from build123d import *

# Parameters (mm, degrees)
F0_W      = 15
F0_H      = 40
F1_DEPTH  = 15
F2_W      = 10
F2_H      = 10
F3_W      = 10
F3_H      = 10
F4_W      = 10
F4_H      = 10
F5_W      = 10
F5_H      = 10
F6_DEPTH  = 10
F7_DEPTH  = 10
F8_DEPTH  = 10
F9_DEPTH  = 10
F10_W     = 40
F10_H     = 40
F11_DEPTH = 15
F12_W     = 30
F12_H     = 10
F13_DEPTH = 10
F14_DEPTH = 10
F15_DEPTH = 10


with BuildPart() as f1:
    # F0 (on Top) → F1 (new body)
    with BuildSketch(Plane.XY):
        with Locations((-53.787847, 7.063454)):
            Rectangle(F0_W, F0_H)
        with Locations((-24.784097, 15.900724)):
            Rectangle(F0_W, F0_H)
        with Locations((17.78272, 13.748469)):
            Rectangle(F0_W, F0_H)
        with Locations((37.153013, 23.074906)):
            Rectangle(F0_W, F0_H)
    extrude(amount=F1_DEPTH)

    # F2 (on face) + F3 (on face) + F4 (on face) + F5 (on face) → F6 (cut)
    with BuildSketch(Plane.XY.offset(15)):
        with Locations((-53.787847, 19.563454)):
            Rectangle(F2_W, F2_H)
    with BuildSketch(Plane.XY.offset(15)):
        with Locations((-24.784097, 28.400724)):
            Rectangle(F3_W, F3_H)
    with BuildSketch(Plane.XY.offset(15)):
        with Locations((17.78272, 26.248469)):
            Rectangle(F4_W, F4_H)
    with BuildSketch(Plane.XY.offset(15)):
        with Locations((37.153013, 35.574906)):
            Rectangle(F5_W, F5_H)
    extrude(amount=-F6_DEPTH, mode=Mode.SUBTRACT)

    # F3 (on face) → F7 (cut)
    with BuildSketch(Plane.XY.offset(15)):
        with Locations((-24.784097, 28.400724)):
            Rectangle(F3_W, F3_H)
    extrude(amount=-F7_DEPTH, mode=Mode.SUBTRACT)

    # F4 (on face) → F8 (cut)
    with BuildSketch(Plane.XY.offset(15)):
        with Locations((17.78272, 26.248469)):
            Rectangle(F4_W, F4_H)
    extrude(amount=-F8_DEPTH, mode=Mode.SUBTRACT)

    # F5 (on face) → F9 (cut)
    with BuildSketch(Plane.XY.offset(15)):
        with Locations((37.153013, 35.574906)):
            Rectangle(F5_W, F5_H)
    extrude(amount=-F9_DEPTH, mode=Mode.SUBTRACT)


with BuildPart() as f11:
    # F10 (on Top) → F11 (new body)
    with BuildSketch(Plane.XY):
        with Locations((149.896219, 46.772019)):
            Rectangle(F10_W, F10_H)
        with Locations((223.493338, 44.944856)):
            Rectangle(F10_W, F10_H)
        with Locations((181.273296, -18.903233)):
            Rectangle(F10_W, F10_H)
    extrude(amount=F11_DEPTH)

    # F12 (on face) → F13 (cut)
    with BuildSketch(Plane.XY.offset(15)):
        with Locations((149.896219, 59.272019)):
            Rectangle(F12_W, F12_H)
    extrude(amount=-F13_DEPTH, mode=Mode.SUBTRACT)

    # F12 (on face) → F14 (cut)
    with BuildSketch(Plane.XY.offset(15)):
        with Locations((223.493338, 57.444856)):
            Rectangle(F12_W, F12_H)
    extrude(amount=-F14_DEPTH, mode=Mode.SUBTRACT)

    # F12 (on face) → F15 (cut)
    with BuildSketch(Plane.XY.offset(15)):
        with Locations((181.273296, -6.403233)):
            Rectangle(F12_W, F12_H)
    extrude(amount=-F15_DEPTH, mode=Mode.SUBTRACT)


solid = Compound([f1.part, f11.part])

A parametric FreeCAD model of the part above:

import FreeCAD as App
import Part
import Sketcher
Q = App.Units.Quantity


def add_polygon(sketch, points):
    """Adds a closed chain of lines whose ends are joined by coincident constraints."""
    first, n = sketch.GeometryCount, len(points)
    for a, b in zip(points, points[1:] + points[:1]):
        sketch.addGeometry(Part.LineSegment(App.Vector(*a, 0), App.Vector(*b, 0)), False)
    for i in range(n):
        sketch.addConstraint(Sketcher.Constraint("Coincident", first + i, 2, first + (i + 1) % n, 1))

doc = App.newDocument("Part")
body = doc.addObject("PartDesign::Body", "Body")
body.AllowCompound = True

sketch1 = body.newObject("Sketcher::SketchObject", "Sketch")
sketch1.AttachmentSupport = (doc.getObject("XY_Plane"), [""])
sketch1.MapMode = "FlatFace"
add_polygon(sketch1, [(-61.287847, 27.063454), (-61.287847, -12.936546), (-46.287847, -12.936546), (-46.287847, 27.063454)])
add_polygon(sketch1, [(-32.284097, 35.900724), (-32.284097, -4.099276), (-17.284097, -4.099276), (-17.284097, 35.900724)])
add_polygon(sketch1, [(10.28272, 33.748469), (10.28272, -6.251531), (25.28272, -6.251531), (25.28272, 33.748469)])
add_polygon(sketch1, [(29.653013, 43.074906), (29.653013, 3.074906), (44.653013, 3.074906), (44.653013, 43.074906)])
sketch1.addConstraint([
    Sketcher.Constraint("Vertical", 0),
    Sketcher.Constraint("Horizontal", 1),
    Sketcher.Constraint("Vertical", 2),
    Sketcher.Constraint("Horizontal", 3),
    Sketcher.Constraint("Vertical", 4),
    Sketcher.Constraint("Horizontal", 5),
    Sketcher.Constraint("Vertical", 6),
    Sketcher.Constraint("Horizontal", 7),
    Sketcher.Constraint("Vertical", 8),
    Sketcher.Constraint("Horizontal", 9),
    Sketcher.Constraint("Vertical", 10),
    Sketcher.Constraint("Horizontal", 11),
    Sketcher.Constraint("Vertical", 12),
    Sketcher.Constraint("Horizontal", 13),
    Sketcher.Constraint("Vertical", 14),
    Sketcher.Constraint("Horizontal", 15),
    Sketcher.Constraint("Equal", 3, 5),
    Sketcher.Constraint("Equal", 7, 9),
    Sketcher.Constraint("Equal", 11, 13),
    Sketcher.Constraint("Equal", 2, 4),
    Sketcher.Constraint("Equal", 6, 8),
    Sketcher.Constraint("Equal", 10, 12),
    Sketcher.Constraint("DistanceX", 1, 1, 1, 2, Q("15 mm")),
    Sketcher.Constraint("DistanceY", 0, 2, 0, 1, Q("40 mm")),
    Sketcher.Constraint("DistanceX", -1, 1, 8, 2, Q("10.28272 mm")),
    Sketcher.Constraint("DistanceY", 8, 2, -1, 1, Q("6.251531 mm")),
    Sketcher.Constraint("DistanceX", 1, 2, 4, 2, Q("14.00375 mm")),
    Sketcher.Constraint("DistanceY", 1, 2, 4, 2, Q("8.83727 mm")),
    Sketcher.Constraint("DistanceX", 5, 2, 12, 2, Q("46.93711 mm")),
    Sketcher.Constraint("DistanceX", 0, 2, -1, 1, Q("61.287847 mm")),
    Sketcher.Constraint("DistanceY", 0, 2, -1, 1, Q("12.936546 mm")),
    Sketcher.Constraint("DistanceY", -1, 1, 12, 2, Q("3.074906 mm")),
])
pad1 = body.newObject("PartDesign::Pad", "Pad")
pad1.Profile = sketch1
pad1.Length = 15

sketch2 = body.newObject("Sketcher::SketchObject", "Sketch001")
sketch2.AttachmentSupport = (doc.getObject("XY_Plane"), [""])
sketch2.MapMode = "FlatFace"
sketch2.AttachmentOffset = App.Placement(App.Vector(0, 0, 15), App.Rotation())
add_polygon(sketch2, [(-58.787847, 24.563454), (-58.787847, 14.563454), (-48.787847, 14.563454), (-48.787847, 24.563454)])
add_polygon(sketch2, [(-29.784097, 33.400724), (-29.784097, 23.400724), (-19.784097, 23.400724), (-19.784097, 33.400724)])
add_polygon(sketch2, [(12.78272, 31.248469), (12.78272, 21.248469), (22.78272, 21.248469), (22.78272, 31.248469)])
add_polygon(sketch2, [(32.153013, 40.574906), (32.153013, 30.574906), (42.153013, 30.574906), (42.153013, 40.574906)])
sketch2.addConstraint([
    Sketcher.Constraint("Vertical", 0),
    Sketcher.Constraint("Horizontal", 1),
    Sketcher.Constraint("Vertical", 2),
    Sketcher.Constraint("Horizontal", 3),
    Sketcher.Constraint("Vertical", 4),
    Sketcher.Constraint("Horizontal", 5),
    Sketcher.Constraint("Vertical", 6),
    Sketcher.Constraint("Horizontal", 7),
    Sketcher.Constraint("Vertical", 8),
    Sketcher.Constraint("Horizontal", 9),
    Sketcher.Constraint("Vertical", 10),
    Sketcher.Constraint("Horizontal", 11),
    Sketcher.Constraint("Vertical", 12),
    Sketcher.Constraint("Horizontal", 13),
    Sketcher.Constraint("Vertical", 14),
    Sketcher.Constraint("Horizontal", 15),
    Sketcher.Constraint("Equal", 3, 5),
    Sketcher.Constraint("Equal", 7, 9),
    Sketcher.Constraint("Equal", 11, 13),
    Sketcher.Constraint("Equal", 15, 0),
    Sketcher.Constraint("Equal", 2, 4),
    Sketcher.Constraint("Equal", 6, 8),
    Sketcher.Constraint("Equal", 10, 12),
    Sketcher.Constraint("DistanceX", 1, 1, 1, 2, Q("10 mm")),
    Sketcher.Constraint("DistanceX", -1, 1, 8, 2, Q("12.78272 mm")),
    Sketcher.Constraint("DistanceY", -1, 1, 8, 2, Q("21.248469 mm")),
    Sketcher.Constraint("DistanceX", 2, 2, 4, 2, Q("19.00375 mm")),
    Sketcher.Constraint("DistanceY", 4, 2, 2, 2, Q("1.16273 mm")),
    Sketcher.Constraint("DistanceX", 6, 2, 12, 2, Q("51.93711 mm")),
    Sketcher.Constraint("DistanceX", 0, 2, -1, 1, Q("58.787847 mm")),
    Sketcher.Constraint("DistanceY", -1, 1, 0, 2, Q("14.563454 mm")),
    Sketcher.Constraint("DistanceY", -1, 1, 12, 2, Q("30.574906 mm")),
])
pocket1 = body.newObject("PartDesign::Pocket", "Pocket")
pocket1.Profile = sketch2
pocket1.Length = 10

sketch3 = body.newObject("Sketcher::SketchObject", "Sketch002")
sketch3.AttachmentSupport = (doc.getObject("XY_Plane"), [""])
sketch3.MapMode = "FlatFace"
sketch3.AttachmentOffset = App.Placement(App.Vector(0, 0, 15), App.Rotation())
add_polygon(sketch3, [(-29.784097, 33.400724), (-29.784097, 23.400724), (-19.784097, 23.400724), (-19.784097, 33.400724)])
sketch3.addConstraint([
    Sketcher.Constraint("Vertical", 0),
    Sketcher.Constraint("Horizontal", 1),
    Sketcher.Constraint("Vertical", 2),
    Sketcher.Constraint("Horizontal", 3),
    Sketcher.Constraint("Equal", 3, 0),
    Sketcher.Constraint("DistanceX", 1, 1, 1, 2, Q("10 mm")),
    Sketcher.Constraint("DistanceX", 0, 2, -1, 1, Q("29.784097 mm")),
    Sketcher.Constraint("DistanceY", -1, 1, 0, 2, Q("23.400724 mm")),
])
pocket2 = body.newObject("PartDesign::Pocket", "Pocket001")
pocket2.Profile = sketch3
pocket2.Length = 10

sketch4 = body.newObject("Sketcher::SketchObject", "Sketch003")
sketch4.AttachmentSupport = (doc.getObject("XY_Plane"), [""])
sketch4.MapMode = "FlatFace"
sketch4.AttachmentOffset = App.Placement(App.Vector(0, 0, 15), App.Rotation())
add_polygon(sketch4, [(12.78272, 31.248469), (12.78272, 21.248469), (22.78272, 21.248469), (22.78272, 31.248469)])
sketch4.addConstraint([
    Sketcher.Constraint("Vertical", 0),
    Sketcher.Constraint("Horizontal", 1),
    Sketcher.Constraint("Vertical", 2),
    Sketcher.Constraint("Horizontal", 3),
    Sketcher.Constraint("Equal", 3, 0),
    Sketcher.Constraint("DistanceX", 1, 1, 1, 2, Q("10 mm")),
    Sketcher.Constraint("DistanceX", -1, 1, 0, 2, Q("12.78272 mm")),
    Sketcher.Constraint("DistanceY", -1, 1, 0, 2, Q("21.248469 mm")),
])
pocket3 = body.newObject("PartDesign::Pocket", "Pocket002")
pocket3.Profile = sketch4
pocket3.Length = 10

sketch5 = body.newObject("Sketcher::SketchObject", "Sketch004")
sketch5.AttachmentSupport = (doc.getObject("XY_Plane"), [""])
sketch5.MapMode = "FlatFace"
sketch5.AttachmentOffset = App.Placement(App.Vector(0, 0, 15), App.Rotation())
add_polygon(sketch5, [(32.153013, 40.574906), (32.153013, 30.574906), (42.153013, 30.574906), (42.153013, 40.574906)])
sketch5.addConstraint([
    Sketcher.Constraint("Vertical", 0),
    Sketcher.Constraint("Horizontal", 1),
    Sketcher.Constraint("Vertical", 2),
    Sketcher.Constraint("Horizontal", 3),
    Sketcher.Constraint("Equal", 3, 0),
    Sketcher.Constraint("DistanceX", 1, 1, 1, 2, Q("10 mm")),
    Sketcher.Constraint("DistanceX", -1, 1, 0, 2, Q("32.153013 mm")),
    Sketcher.Constraint("DistanceY", -1, 1, 0, 2, Q("30.574906 mm")),
])
pocket4 = body.newObject("PartDesign::Pocket", "Pocket003")
pocket4.Profile = sketch5
pocket4.Length = 10
body2 = doc.addObject("PartDesign::Body", "Body001")
body2.AllowCompound = True

sketch6 = body2.newObject("Sketcher::SketchObject", "Sketch005")
sketch6.AttachmentSupport = (doc.getObject("XY_Plane001"), [""])
sketch6.MapMode = "FlatFace"
add_polygon(sketch6, [(129.896219, 66.772019), (129.896219, 26.772019), (169.896219, 26.772019), (169.896219, 66.772019)])
add_polygon(sketch6, [(203.493338, 64.944856), (203.493338, 24.944856), (243.493338, 24.944856), (243.493338, 64.944856)])
add_polygon(sketch6, [(161.273296, 1.096767), (161.273296, -38.903233), (201.273296, -38.903233), (201.273296, 1.096767)])
sketch6.addConstraint([
    Sketcher.Constraint("Vertical", 0),
    Sketcher.Constraint("Horizontal", 1),
    Sketcher.Constraint("Vertical", 2),
    Sketcher.Constraint("Horizontal", 3),
    Sketcher.Constraint("Vertical", 4),
    Sketcher.Constraint("Horizontal", 5),
    Sketcher.Constraint("Vertical", 6),
    Sketcher.Constraint("Horizontal", 7),
    Sketcher.Constraint("Vertical", 8),
    Sketcher.Constraint("Horizontal", 9),
    Sketcher.Constraint("Vertical", 10),
    Sketcher.Constraint("Horizontal", 11),
    Sketcher.Constraint("Equal", 3, 5),
    Sketcher.Constraint("Equal", 7, 9),
    Sketcher.Constraint("Equal", 11, 0),
    Sketcher.Constraint("Equal", 2, 4),
    Sketcher.Constraint("Equal", 6, 8),
    Sketcher.Constraint("DistanceX", 1, 1, 1, 2, Q("40 mm")),
    Sketcher.Constraint("DistanceX", -1, 1, 0, 2, Q("129.896219 mm")),
    Sketcher.Constraint("DistanceY", -1, 1, 0, 2, Q("26.772019 mm")),
    Sketcher.Constraint("DistanceX", -1, 1, 4, 2, Q("203.493338 mm")),
    Sketcher.Constraint("DistanceY", 8, 2, 1, 2, Q("65.675252 mm")),
    Sketcher.Constraint("DistanceY", 8, 2, 4, 2, Q("63.848089 mm")),
    Sketcher.Constraint("DistanceX", -1, 1, 8, 2, Q("161.273296 mm")),
])
pad2 = body2.newObject("PartDesign::Pad", "Pad001")
pad2.Profile = sketch6
pad2.Length = 15

sketch7 = body2.newObject("Sketcher::SketchObject", "Sketch006")
sketch7.AttachmentSupport = (doc.getObject("XY_Plane001"), [""])
sketch7.MapMode = "FlatFace"
sketch7.AttachmentOffset = App.Placement(App.Vector(0, 0, 15), App.Rotation())
add_polygon(sketch7, [(134.896219, 64.272019), (134.896219, 54.272019), (164.896219, 54.272019), (164.896219, 64.272019)])
sketch7.addConstraint([
    Sketcher.Constraint("Vertical", 0),
    Sketcher.Constraint("Horizontal", 1),
    Sketcher.Constraint("Vertical", 2),
    Sketcher.Constraint("Horizontal", 3),
    Sketcher.Constraint("DistanceX", 1, 1, 1, 2, Q("30 mm")),
    Sketcher.Constraint("DistanceY", 0, 2, 0, 1, Q("10 mm")),
    Sketcher.Constraint("DistanceX", -1, 1, 0, 2, Q("134.896219 mm")),
    Sketcher.Constraint("DistanceY", -1, 1, 0, 2, Q("54.272019 mm")),
])
pocket5 = body2.newObject("PartDesign::Pocket", "Pocket004")
pocket5.Profile = sketch7
pocket5.Length = 10

sketch8 = body2.newObject("Sketcher::SketchObject", "Sketch007")
sketch8.AttachmentSupport = (doc.getObject("XY_Plane001"), [""])
sketch8.MapMode = "FlatFace"
sketch8.AttachmentOffset = App.Placement(App.Vector(0, 0, 15), App.Rotation())
add_polygon(sketch8, [(208.493338, 62.444856), (208.493338, 52.444856), (238.493338, 52.444856), (238.493338, 62.444856)])
sketch8.addConstraint([
    Sketcher.Constraint("Vertical", 0),
    Sketcher.Constraint("Horizontal", 1),
    Sketcher.Constraint("Vertical", 2),
    Sketcher.Constraint("Horizontal", 3),
    Sketcher.Constraint("DistanceX", 1, 1, 1, 2, Q("30 mm")),
    Sketcher.Constraint("DistanceY", 0, 2, 0, 1, Q("10 mm")),
    Sketcher.Constraint("DistanceX", -1, 1, 0, 2, Q("208.493338 mm")),
    Sketcher.Constraint("DistanceY", -1, 1, 0, 2, Q("52.444856 mm")),
])
pocket6 = body2.newObject("PartDesign::Pocket", "Pocket005")
pocket6.Profile = sketch8
pocket6.Length = 10

sketch9 = body2.newObject("Sketcher::SketchObject", "Sketch008")
sketch9.AttachmentSupport = (doc.getObject("XY_Plane001"), [""])
sketch9.MapMode = "FlatFace"
sketch9.AttachmentOffset = App.Placement(App.Vector(0, 0, 15), App.Rotation())
add_polygon(sketch9, [(166.273296, -1.403233), (166.273296, -11.403233), (196.273296, -11.403233), (196.273296, -1.403233)])
sketch9.addConstraint([
    Sketcher.Constraint("Vertical", 0),
    Sketcher.Constraint("Horizontal", 1),
    Sketcher.Constraint("Vertical", 2),
    Sketcher.Constraint("Horizontal", 3),
    Sketcher.Constraint("DistanceX", 1, 1, 1, 2, Q("30 mm")),
    Sketcher.Constraint("DistanceY", 0, 2, 0, 1, Q("10 mm")),
    Sketcher.Constraint("DistanceX", -1, 1, 0, 2, Q("166.273296 mm")),
    Sketcher.Constraint("DistanceY", 0, 2, -1, 1, Q("11.403233 mm")),
])
pocket7 = body2.newObject("PartDesign::Pocket", "Pocket006")
pocket7.Profile = sketch9
pocket7.Length = 10

doc.recompute()
